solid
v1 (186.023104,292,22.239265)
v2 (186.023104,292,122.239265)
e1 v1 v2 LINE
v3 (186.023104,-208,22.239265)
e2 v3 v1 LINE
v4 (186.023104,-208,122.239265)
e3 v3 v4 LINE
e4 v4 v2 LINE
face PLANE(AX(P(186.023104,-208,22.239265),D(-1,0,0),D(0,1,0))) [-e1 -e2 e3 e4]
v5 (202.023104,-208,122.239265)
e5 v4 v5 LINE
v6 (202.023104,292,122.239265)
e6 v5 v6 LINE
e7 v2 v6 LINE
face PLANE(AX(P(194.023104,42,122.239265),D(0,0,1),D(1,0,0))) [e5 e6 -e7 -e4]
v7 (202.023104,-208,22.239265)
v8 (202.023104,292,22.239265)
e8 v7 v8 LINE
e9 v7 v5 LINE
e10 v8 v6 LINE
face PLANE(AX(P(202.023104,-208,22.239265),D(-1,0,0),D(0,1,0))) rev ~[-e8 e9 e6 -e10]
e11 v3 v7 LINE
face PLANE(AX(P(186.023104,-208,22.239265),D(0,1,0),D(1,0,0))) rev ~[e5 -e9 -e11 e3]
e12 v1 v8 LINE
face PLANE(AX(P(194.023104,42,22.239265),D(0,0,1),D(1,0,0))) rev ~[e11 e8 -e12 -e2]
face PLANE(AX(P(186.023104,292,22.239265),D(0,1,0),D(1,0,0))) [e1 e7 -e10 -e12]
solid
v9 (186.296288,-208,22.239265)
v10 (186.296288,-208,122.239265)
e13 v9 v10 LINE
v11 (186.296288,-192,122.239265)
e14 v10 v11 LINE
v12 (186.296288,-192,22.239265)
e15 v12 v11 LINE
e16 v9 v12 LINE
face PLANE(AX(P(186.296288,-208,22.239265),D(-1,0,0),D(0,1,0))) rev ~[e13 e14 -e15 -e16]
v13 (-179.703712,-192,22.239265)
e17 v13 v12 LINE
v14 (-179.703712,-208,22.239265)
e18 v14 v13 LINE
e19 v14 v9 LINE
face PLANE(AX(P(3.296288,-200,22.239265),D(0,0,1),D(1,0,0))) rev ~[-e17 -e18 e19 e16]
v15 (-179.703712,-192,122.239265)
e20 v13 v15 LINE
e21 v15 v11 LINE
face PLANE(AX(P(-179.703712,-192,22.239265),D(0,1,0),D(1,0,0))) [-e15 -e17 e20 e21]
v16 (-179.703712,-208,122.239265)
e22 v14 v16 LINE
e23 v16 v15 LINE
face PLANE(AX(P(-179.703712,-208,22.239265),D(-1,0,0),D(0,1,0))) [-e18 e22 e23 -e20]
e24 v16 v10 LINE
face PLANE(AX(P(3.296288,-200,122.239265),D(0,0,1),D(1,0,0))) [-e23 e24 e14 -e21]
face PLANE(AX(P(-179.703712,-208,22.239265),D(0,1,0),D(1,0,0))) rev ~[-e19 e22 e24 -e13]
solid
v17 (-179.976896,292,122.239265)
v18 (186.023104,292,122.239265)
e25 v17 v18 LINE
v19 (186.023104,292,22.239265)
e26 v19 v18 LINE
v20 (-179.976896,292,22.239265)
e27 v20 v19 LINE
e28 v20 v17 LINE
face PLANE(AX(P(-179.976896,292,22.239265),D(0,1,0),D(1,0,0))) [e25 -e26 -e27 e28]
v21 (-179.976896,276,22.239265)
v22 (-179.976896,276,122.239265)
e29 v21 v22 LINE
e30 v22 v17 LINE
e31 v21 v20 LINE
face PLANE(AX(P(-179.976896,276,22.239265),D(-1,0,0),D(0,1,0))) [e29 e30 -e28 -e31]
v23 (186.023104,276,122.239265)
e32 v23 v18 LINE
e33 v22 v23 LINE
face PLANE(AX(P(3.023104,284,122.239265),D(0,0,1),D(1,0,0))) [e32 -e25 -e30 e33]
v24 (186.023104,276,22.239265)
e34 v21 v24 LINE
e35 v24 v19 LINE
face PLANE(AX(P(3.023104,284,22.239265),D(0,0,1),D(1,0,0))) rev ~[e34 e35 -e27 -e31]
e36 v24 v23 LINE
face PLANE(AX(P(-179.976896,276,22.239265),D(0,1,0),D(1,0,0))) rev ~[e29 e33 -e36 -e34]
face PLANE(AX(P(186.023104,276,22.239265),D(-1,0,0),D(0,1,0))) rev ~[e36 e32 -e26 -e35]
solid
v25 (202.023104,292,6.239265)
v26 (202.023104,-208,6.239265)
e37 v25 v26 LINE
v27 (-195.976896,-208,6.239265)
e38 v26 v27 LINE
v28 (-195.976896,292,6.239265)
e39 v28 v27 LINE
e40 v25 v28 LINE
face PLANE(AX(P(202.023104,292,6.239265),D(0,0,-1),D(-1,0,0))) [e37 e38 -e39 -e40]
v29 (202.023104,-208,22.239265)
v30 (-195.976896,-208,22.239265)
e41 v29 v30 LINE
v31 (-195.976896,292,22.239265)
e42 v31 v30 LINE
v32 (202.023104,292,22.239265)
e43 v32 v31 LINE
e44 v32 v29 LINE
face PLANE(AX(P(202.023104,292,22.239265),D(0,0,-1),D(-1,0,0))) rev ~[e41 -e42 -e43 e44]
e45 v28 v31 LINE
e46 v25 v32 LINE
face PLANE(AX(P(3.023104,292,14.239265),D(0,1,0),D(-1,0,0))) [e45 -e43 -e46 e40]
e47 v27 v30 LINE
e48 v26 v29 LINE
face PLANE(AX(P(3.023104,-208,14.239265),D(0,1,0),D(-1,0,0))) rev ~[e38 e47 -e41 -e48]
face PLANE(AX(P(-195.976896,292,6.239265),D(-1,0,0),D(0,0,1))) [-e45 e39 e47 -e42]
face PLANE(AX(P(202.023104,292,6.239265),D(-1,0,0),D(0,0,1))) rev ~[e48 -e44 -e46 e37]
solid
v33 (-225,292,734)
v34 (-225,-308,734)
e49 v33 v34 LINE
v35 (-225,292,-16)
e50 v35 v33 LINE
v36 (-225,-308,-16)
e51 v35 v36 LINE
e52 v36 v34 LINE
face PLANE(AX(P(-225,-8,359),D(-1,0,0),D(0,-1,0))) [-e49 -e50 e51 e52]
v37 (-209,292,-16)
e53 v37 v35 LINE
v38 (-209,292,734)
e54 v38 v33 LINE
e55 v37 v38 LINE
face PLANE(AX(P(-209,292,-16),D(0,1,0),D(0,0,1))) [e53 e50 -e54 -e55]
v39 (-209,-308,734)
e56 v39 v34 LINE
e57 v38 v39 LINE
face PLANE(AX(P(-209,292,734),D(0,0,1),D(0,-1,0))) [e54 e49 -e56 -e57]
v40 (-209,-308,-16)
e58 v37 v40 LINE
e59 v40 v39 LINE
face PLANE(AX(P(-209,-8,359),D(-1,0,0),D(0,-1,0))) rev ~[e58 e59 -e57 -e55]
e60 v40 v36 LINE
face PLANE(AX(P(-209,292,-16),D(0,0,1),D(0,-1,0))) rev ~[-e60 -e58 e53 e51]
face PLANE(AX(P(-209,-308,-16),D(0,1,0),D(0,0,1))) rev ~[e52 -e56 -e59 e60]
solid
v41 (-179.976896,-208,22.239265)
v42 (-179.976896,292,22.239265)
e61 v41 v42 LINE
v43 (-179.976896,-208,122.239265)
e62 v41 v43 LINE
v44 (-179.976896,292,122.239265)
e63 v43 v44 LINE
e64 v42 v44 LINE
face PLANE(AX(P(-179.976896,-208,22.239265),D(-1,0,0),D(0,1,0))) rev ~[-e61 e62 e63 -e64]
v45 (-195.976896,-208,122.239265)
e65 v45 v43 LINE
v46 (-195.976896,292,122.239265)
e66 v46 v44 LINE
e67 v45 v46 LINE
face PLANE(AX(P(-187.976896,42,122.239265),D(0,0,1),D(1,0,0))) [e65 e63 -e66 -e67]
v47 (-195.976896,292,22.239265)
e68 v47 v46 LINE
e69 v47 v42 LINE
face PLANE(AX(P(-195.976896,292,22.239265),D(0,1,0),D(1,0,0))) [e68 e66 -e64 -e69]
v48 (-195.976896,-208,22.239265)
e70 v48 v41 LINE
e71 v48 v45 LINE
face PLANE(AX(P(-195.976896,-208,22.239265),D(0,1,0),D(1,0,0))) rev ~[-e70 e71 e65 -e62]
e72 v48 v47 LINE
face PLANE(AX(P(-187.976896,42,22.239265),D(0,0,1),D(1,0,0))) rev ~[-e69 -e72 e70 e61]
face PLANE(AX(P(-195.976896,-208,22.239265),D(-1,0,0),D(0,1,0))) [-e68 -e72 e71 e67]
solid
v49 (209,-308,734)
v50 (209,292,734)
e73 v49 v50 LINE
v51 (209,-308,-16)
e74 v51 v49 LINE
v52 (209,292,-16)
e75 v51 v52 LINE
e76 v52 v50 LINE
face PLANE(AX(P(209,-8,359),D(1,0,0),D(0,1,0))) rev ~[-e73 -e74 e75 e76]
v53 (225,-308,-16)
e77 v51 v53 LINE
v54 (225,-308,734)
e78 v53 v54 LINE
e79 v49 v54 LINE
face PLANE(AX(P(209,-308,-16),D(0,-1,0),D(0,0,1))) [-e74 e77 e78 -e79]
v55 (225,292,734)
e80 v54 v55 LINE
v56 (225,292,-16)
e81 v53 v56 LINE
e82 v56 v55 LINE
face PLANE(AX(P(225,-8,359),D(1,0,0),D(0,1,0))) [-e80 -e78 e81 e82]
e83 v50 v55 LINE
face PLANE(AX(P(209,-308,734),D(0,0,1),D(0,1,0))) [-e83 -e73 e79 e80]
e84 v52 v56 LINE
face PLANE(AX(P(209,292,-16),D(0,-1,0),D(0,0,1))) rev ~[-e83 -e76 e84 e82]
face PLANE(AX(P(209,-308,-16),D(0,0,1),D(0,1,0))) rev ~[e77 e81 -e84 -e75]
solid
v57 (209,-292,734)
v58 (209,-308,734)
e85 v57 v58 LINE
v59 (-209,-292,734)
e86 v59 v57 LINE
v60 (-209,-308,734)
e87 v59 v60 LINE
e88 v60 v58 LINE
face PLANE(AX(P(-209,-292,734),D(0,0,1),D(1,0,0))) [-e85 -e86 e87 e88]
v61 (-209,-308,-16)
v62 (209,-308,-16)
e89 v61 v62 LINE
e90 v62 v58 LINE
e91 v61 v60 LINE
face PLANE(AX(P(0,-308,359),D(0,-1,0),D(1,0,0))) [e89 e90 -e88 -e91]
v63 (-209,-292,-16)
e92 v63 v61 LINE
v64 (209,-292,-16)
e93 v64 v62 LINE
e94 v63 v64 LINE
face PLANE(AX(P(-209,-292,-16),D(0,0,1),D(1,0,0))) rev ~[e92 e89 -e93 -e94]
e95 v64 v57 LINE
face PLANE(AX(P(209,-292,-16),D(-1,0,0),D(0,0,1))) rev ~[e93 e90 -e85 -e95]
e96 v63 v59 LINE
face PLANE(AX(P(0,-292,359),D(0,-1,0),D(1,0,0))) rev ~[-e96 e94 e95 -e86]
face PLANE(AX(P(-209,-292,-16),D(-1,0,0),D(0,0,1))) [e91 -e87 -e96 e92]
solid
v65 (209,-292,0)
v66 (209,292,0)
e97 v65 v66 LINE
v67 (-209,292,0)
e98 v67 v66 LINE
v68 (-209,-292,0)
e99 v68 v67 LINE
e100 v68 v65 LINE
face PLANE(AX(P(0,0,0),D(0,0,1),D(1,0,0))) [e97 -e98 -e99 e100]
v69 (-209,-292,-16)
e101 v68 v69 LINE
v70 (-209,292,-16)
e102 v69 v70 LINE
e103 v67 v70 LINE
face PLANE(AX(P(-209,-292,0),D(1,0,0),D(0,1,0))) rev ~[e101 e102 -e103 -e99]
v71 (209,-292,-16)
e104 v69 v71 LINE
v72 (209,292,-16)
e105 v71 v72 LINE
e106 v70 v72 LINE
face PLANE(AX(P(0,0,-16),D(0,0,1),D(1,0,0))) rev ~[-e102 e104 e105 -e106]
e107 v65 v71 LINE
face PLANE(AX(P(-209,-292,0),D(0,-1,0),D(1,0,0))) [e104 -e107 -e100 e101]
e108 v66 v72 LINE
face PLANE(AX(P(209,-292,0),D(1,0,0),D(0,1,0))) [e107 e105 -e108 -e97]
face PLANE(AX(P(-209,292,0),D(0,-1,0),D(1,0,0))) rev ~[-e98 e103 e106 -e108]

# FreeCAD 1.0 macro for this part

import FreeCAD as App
import Part
import Sketcher
from FreeCAD import Vector
Q = App.Units.Quantity

doc = App.newDocument("Part")
body = doc.addObject("PartDesign::Body", "Body")

sketch1 = body.newObject("Sketcher::SketchObject", "Sketch")
sketch1.AttachmentSupport = (doc.getObject("XY_Plane"), [""])
sketch1.MapMode = "FlatFace"
sketch1.addGeometry([
    Part.LineSegment(Vector(-209, 292, 0), Vector(-209, -292, 0)),
    Part.LineSegment(Vector(-209, -292, 0), Vector(209, -292, 0)),
    Part.LineSegment(Vector(209, -292, 0), Vector(209, 292, 0)),
    Part.LineSegment(Vector(209, 292, 0), Vector(-209, 292, 0)),
], False)
sketch1.addConstraint([
    Sketcher.Constraint("Coincident", 0, 2, 1, 1),
    Sketcher.Constraint("Coincident", 1, 2, 2, 1),
    Sketcher.Constraint("Coincident", 2, 2, 3, 1),
    Sketcher.Constraint("Coincident", 3, 2, 0, 1),
    Sketcher.Constraint("Vertical", 0),
    Sketcher.Constraint("Horizontal", 1),
    Sketcher.Constraint("Vertical", 2),
    Sketcher.Constraint("Horizontal", 3),
    Sketcher.Constraint("Symmetric", 0, 2, 2, 2, -1, 1),
    Sketcher.Constraint("DistanceX", 1, 1, 1, 2, Q("418 mm")),
    Sketcher.Constraint("DistanceY", 0, 2, 0, 1, Q("584 mm")),
])
pad1 = body.newObject("PartDesign::Pad", "Pad")
pad1.Profile = sketch1
pad1.Length = 16
pad1.Reversed = True
body2 = doc.addObject("PartDesign::Body", "Body001")

sketch2 = body2.newObject("Sketcher::SketchObject", "Sketch001")
sketch2.AttachmentSupport = (doc.getObject("XZ_Plane001"), [""])
sketch2.MapMode = "FlatFace"
sketch2.AttachmentOffset = App.Placement(Vector(0, 0, 292), App.Rotation())
sketch2.addGeometry([
    Part.LineSegment(Vector(-209, 734, 0), Vector(-209, -16, 0)),
    Part.LineSegment(Vector(-209, -16, 0), Vector(209, -16, 0)),
    Part.LineSegment(Vector(209, -16, 0), Vector(209, 734, 0)),
    Part.LineSegment(Vector(209, 734, 0), Vector(-209, 734, 0)),
], False)
sketch2.addConstraint([
    Sketcher.Constraint("Coincident", 0, 2, 1, 1),
    Sketcher.Constraint("Coincident", 1, 2, 2, 1),
    Sketcher.Constraint("Coincident", 2, 2, 3, 1),
    Sketcher.Constraint("Coincident", 3, 2, 0, 1),
    Sketcher.Constraint("Vertical", 0),
    Sketcher.Constraint("Horizontal", 1),
    Sketcher.Constraint("Vertical", 2),
    Sketcher.Constraint("Horizontal", 3),
    Sketcher.Constraint("DistanceX", 1, 1, 1, 2, Q("418 mm")),
    Sketcher.Constraint("DistanceY", 0, 2, 0, 1, Q("750 mm")),
    Sketcher.Constraint("DistanceX", 0, 2, -1, 1, Q("209 mm")),
    Sketcher.Constraint("DistanceY", 0, 2, -1, 1, Q("16 mm")),
])
pad2 = body2.newObject("PartDesign::Pad", "Pad001")
pad2.Profile = sketch2
pad2.Length = 16
body3 = doc.addObject("PartDesign::Body", "Body002")

sketch3 = body3.newObject("Sketcher::SketchObject", "Sketch002")
sketch3.AttachmentSupport = (doc.getObject("YZ_Plane002"), [""])
sketch3.MapMode = "FlatFace"
sketch3.AttachmentOffset = App.Placement(Vector(0, 0, 209), App.Rotation())
sketch3.addGeometry([
    Part.LineSegment(Vector(-308, 734, 0), Vector(-308, -16, 0)),
    Part.LineSegment(Vector(-308, -16, 0), Vector(292, -16, 0)),
    Part.LineSegment(Vector(292, -16, 0), Vector(292, 734, 0)),
    Part.LineSegment(Vector(292, 734, 0), Vector(-308, 734, 0)),
], False)
sketch3.addConstraint([
    Sketcher.Constraint("Coincident", 0, 2, 1, 1),
    Sketcher.Constraint("Coincident", 1, 2, 2, 1),
    Sketcher.Constraint("Coincident", 2, 2, 3, 1),
    Sketcher.Constraint("Coincident", 3, 2, 0, 1),
    Sketcher.Constraint("Vertical", 0),
    Sketcher.Constraint("Horizontal", 1),
    Sketcher.Constraint("Vertical", 2),
    Sketcher.Constraint("Horizontal", 3),
    Sketcher.Constraint("DistanceX", 1, 1, 1, 2, Q("600 mm")),
    Sketcher.Constraint("DistanceY", 0, 2, 0, 1, Q("750 mm")),
    Sketcher.Constraint("DistanceX", 0, 2, -1, 1, Q("308 mm")),
    Sketcher.Constraint("DistanceY", 0, 2, -1, 1, Q("16 mm")),
])
pad3 = body3.newObject("PartDesign::Pad", "Pad002")
pad3.Profile = sketch3
pad3.Length = 16
body4 = doc.addObject("PartDesign::Body", "Body003")

sketch4 = body4.newObject("Sketcher::SketchObject", "Sketch003")
sketch4.AttachmentSupport = (doc.getObject("YZ_Plane003"), [""])
sketch4.MapMode = "FlatFace"
sketch4.AttachmentOffset = App.Placement(Vector(0, 0, -209), App.Rotation())
sketch4.addGeometry([
    Part.LineSegment(Vector(292, 734, 0), Vector(292, -16, 0)),
    Part.LineSegment(Vector(292, -16, 0), Vector(-308, -16, 0)),
    Part.LineSegment(Vector(-308, -16, 0), Vector(-308, 734, 0)),
    Part.LineSegment(Vector(-308, 734, 0), Vector(292, 734, 0)),
], False)
sketch4.addConstraint([
    Sketcher.Constraint("Coincident", 0, 2, 1, 1),
    Sketcher.Constraint("Coincident", 1, 2, 2, 1),
    Sketcher.Constraint("Coincident", 2, 2, 3, 1),
    Sketcher.Constraint("Coincident", 3, 2, 0, 1),
    Sketcher.Constraint("Vertical", 0),
    Sketcher.Constraint("Horizontal", 1),
    Sketcher.Constraint("Vertical", 2),
    Sketcher.Constraint("Horizontal", 3),
    Sketcher.Constraint("DistanceX", 1, 2, 1, 1, Q("600 mm")),
    Sketcher.Constraint("DistanceY", 0, 2, 0, 1, Q("750 mm")),
    Sketcher.Constraint("DistanceX", -1, 1, 0, 2, Q("292 mm")),
    Sketcher.Constraint("DistanceY", 0, 2, -1, 1, Q("16 mm")),
])
pad4 = body4.newObject("PartDesign::Pad", "Pad003")
pad4.Profile = sketch4
pad4.Length = 16
pad4.Reversed = True
body5 = doc.addObject("PartDesign::Body", "Body004")

sketch5 = body5.newObject("Sketcher::SketchObject", "Sketch004")
sketch5.AttachmentSupport = (doc.getObject("XZ_Plane004"), [""])
sketch5.MapMode = "FlatFace"
sketch5.AttachmentOffset = App.Placement(Vector(0, 0, -292), App.Rotation())
sketch5.addGeometry([
    Part.LineSegment(Vector(202, 22, 0), Vector(202, 6, 0)),
    Part.LineSegment(Vector(202, 6, 0), Vector(-196, 6, 0)),
    Part.LineSegment(Vector(-196, 6, 0), Vector(-196, 22, 0)),
    Part.LineSegment(Vector(-196, 22, 0), Vector(202, 22, 0)),
], False)
sketch5.addConstraint([
    Sketcher.Constraint("Coincident", 0, 2, 1, 1),
    Sketcher.Constraint("Coincident", 1, 2, 2, 1),
    Sketcher.Constraint("Coincident", 2, 2, 3, 1),
    Sketcher.Constraint("Coincident", 3, 2, 0, 1),
    Sketcher.Constraint("Vertical", 0),
    Sketcher.Constraint("Horizontal", 1),
    Sketcher.Constraint("Vertical", 2),
    Sketcher.Constraint("Horizontal", 3),
    Sketcher.Constraint("DistanceX", 1, 2, 1, 1, Q("398 mm")),
    Sketcher.Constraint("DistanceY", 0, 2, 0, 1, Q("16 mm")),
    Sketcher.Constraint("DistanceX", -1, 1, 0, 2, Q("202.023104 mm")),
    Sketcher.Constraint("DistanceY", -1, 1, 0, 2, Q("6.239265 mm")),
])
pad5 = body5.newObject("PartDesign::Pad", "Pad004")
pad5.Profile = sketch5
pad5.Length = 500
body6 = doc.addObject("PartDesign::Body", "Body005")

sketch6 = body6.newObject("Sketcher::SketchObject", "Sketch005")
sketch6.AttachmentSupport = (doc.getObject("XY_Plane005"), [""])
sketch6.MapMode = "FlatFace"
sketch6.AttachmentOffset = App.Placement(Vector(0, 0, 22.239265), App.Rotation())
sketch6.addGeometry([
    Part.LineSegment(Vector(186, 292, 0), Vector(186, -208, 0)),
    Part.LineSegment(Vector(186, -208, 0), Vector(202, -208, 0)),
    Part.LineSegment(Vector(202, -208, 0), Vector(202, 292, 0)),
    Part.LineSegment(Vector(202, 292, 0), Vector(186, 292, 0)),
], False)
sketch6.addConstraint([
    Sketcher.Constraint("Coincident", 0, 2, 1, 1),
    Sketcher.Constraint("Coincident", 1, 2, 2, 1),
    Sketcher.Constraint("Coincident", 2, 2, 3, 1),
    Sketcher.Constraint("Coincident", 3, 2, 0, 1),
    Sketcher.Constraint("Vertical", 0),
    Sketcher.Constraint("Horizontal", 1),
    Sketcher.Constraint("Vertical", 2),
    Sketcher.Constraint("Horizontal", 3),
    Sketcher.Constraint("DistanceX", 1, 1, 1, 2, Q("16 mm")),
    Sketcher.Constraint("DistanceY", 0, 2, 0, 1, Q("500 mm")),
    Sketcher.Constraint("DistanceY", 0, 2, -1, 1, Q("208 mm")),
    Sketcher.Constraint("DistanceX", -1, 1, 0, 2, Q("186.023104 mm")),
])
pad6 = body6.newObject("PartDesign::Pad", "Pad005")
pad6.Profile = sketch6
pad6.Length = 100
body7 = doc.addObject("PartDesign::Body", "Body006")

sketch7 = body7.newObject("Sketcher::SketchObject", "Sketch006")
sketch7.AttachmentSupport = (doc.getObject("XY_Plane006"), [""])
sketch7.MapMode = "FlatFace"
sketch7.AttachmentOffset = App.Placement(Vector(0, 0, 22.239265), App.Rotation())
sketch7.addGeometry([
    Part.LineSegment(Vector(-196, 292, 0), Vector(-196, -208, 0)),
    Part.LineSegment(Vector(-196, -208, 0), Vector(-180, -208, 0)),
    Part.LineSegment(Vector(-180, -208, 0), Vector(-180, 292, 0)),
    Part.LineSegment(Vector(-180, 292, 0), Vector(-196, 292, 0)),
], False)
sketch7.addConstraint([
    Sketcher.Constraint("Coincident", 0, 2, 1, 1),
    Sketcher.Constraint("Coincident", 1, 2, 2, 1),
    Sketcher.Constraint("Coincident", 2, 2, 3, 1),
    Sketcher.Constraint("Coincident", 3, 2, 0, 1),
    Sketcher.Constraint("Vertical", 0),
    Sketcher.Constraint("Horizontal", 1),
    Sketcher.Constraint("Vertical", 2),
    Sketcher.Constraint("Horizontal", 3),
    Sketcher.Constraint("DistanceX", 1, 1, 1, 2, Q("16 mm")),
    Sketcher.Constraint("DistanceY", 0, 2, 0, 1, Q("500 mm")),
    Sketcher.Constraint("DistanceY", 0, 2, -1, 1, Q("208 mm")),
    Sketcher.Constraint("DistanceX", 0, 2, -1, 1, Q("195.976896 mm")),
])
pad7 = body7.newObject("PartDesign::Pad", "Pad006")
pad7.Profile = sketch7
pad7.Length = 100
body8 = doc.addObject("PartDesign::Body", "Body007")

sketch8 = body8.newObject("Sketcher::SketchObject", "Sketch007")
sketch8.AttachmentSupport = (doc.getObject("XY_Plane007"), [""])
sketch8.MapMode = "FlatFace"
sketch8.AttachmentOffset = App.Placement(Vector(0, 0, 22.239265), App.Rotation())
sketch8.addGeometry([
    Part.LineSegment(Vector(-180, -192, 0), Vector(-180, -208, 0)),
    Part.LineSegment(Vector(-180, -208, 0), Vector(186, -208, 0)),
    Part.LineSegment(Vector(186, -208, 0), Vector(186, -192, 0)),
    Part.LineSegment(Vector(186, -192, 0), Vector(-180, -192, 0)),
], False)
sketch8.addConstraint([
    Sketcher.Constraint("Coincident", 0, 2, 1, 1),
    Sketcher.Constraint("Coincident", 1, 2, 2, 1),
    Sketcher.Constraint("Coincident", 2, 2, 3, 1),
    Sketcher.Constraint("Coincident", 3, 2, 0, 1),
    Sketcher.Constraint("Vertical", 0),
    Sketcher.Constraint("Horizontal", 1),
    Sketcher.Constraint("Vertical", 2),
    Sketcher.Constraint("Horizontal", 3),
    Sketcher.Constraint("DistanceX", 1, 1, 1, 2, Q("366 mm")),
    Sketcher.Constraint("DistanceY", 0, 2, 0, 1, Q("16 mm")),
    Sketcher.Constraint("DistanceY", 0, 2, -1, 1, Q("208 mm")),
    Sketcher.Constraint("DistanceX", 0, 2, -1, 1, Q("179.703712 mm")),
])
pad8 = body8.newObject("PartDesign::Pad", "Pad007")
pad8.Profile = sketch8
pad8.Length = 100
body9 = doc.addObject("PartDesign::Body", "Body008")

sketch9 = body9.newObject("Sketcher::SketchObject", "Sketch008")
sketch9.AttachmentSupport = (doc.getObject("XY_Plane008"), [""])
sketch9.MapMode = "FlatFace"
sketch9.AttachmentOffset = App.Placement(Vector(0, 0, 22.239265), App.Rotation())
sketch9.addGeometry([
    Part.LineSegment(Vector(-180, 292, 0), Vector(-180, 276, 0)),
    Part.LineSegment(Vector(-180, 276, 0), Vector(186, 276, 0)),
    Part.LineSegment(Vector(186, 276, 0), Vector(186, 292, 0)),
    Part.LineSegment(Vector(186, 292, 0), Vector(-180, 292, 0)),
], False)
sketch9.addConstraint([
    Sketcher.Constraint("Coincident", 0, 2, 1, 1),
    Sketcher.Constraint("Coincident", 1, 2, 2, 1),
    Sketcher.Constraint("Coincident", 2, 2, 3, 1),
    Sketcher.Constraint("Coincident", 3, 2, 0, 1),
    Sketcher.Constraint("Vertical", 0),
    Sketcher.Constraint("Horizontal", 1),
    Sketcher.Constraint("Vertical", 2),
    Sketcher.Constraint("Horizontal", 3),
    Sketcher.Constraint("DistanceX", 1, 1, 1, 2, Q("366 mm")),
    Sketcher.Constraint("DistanceY", 0, 2, 0, 1, Q("16 mm")),
    Sketcher.Constraint("DistanceY", -1, 1, 0, 2, Q("276 mm")),
    Sketcher.Constraint("DistanceX", 0, 2, -1, 1, Q("179.976896 mm")),
])
pad9 = body9.newObject("PartDesign::Pad", "Pad008")
pad9.Profile = sketch9
pad9.Length = 100

doc.recompute()
